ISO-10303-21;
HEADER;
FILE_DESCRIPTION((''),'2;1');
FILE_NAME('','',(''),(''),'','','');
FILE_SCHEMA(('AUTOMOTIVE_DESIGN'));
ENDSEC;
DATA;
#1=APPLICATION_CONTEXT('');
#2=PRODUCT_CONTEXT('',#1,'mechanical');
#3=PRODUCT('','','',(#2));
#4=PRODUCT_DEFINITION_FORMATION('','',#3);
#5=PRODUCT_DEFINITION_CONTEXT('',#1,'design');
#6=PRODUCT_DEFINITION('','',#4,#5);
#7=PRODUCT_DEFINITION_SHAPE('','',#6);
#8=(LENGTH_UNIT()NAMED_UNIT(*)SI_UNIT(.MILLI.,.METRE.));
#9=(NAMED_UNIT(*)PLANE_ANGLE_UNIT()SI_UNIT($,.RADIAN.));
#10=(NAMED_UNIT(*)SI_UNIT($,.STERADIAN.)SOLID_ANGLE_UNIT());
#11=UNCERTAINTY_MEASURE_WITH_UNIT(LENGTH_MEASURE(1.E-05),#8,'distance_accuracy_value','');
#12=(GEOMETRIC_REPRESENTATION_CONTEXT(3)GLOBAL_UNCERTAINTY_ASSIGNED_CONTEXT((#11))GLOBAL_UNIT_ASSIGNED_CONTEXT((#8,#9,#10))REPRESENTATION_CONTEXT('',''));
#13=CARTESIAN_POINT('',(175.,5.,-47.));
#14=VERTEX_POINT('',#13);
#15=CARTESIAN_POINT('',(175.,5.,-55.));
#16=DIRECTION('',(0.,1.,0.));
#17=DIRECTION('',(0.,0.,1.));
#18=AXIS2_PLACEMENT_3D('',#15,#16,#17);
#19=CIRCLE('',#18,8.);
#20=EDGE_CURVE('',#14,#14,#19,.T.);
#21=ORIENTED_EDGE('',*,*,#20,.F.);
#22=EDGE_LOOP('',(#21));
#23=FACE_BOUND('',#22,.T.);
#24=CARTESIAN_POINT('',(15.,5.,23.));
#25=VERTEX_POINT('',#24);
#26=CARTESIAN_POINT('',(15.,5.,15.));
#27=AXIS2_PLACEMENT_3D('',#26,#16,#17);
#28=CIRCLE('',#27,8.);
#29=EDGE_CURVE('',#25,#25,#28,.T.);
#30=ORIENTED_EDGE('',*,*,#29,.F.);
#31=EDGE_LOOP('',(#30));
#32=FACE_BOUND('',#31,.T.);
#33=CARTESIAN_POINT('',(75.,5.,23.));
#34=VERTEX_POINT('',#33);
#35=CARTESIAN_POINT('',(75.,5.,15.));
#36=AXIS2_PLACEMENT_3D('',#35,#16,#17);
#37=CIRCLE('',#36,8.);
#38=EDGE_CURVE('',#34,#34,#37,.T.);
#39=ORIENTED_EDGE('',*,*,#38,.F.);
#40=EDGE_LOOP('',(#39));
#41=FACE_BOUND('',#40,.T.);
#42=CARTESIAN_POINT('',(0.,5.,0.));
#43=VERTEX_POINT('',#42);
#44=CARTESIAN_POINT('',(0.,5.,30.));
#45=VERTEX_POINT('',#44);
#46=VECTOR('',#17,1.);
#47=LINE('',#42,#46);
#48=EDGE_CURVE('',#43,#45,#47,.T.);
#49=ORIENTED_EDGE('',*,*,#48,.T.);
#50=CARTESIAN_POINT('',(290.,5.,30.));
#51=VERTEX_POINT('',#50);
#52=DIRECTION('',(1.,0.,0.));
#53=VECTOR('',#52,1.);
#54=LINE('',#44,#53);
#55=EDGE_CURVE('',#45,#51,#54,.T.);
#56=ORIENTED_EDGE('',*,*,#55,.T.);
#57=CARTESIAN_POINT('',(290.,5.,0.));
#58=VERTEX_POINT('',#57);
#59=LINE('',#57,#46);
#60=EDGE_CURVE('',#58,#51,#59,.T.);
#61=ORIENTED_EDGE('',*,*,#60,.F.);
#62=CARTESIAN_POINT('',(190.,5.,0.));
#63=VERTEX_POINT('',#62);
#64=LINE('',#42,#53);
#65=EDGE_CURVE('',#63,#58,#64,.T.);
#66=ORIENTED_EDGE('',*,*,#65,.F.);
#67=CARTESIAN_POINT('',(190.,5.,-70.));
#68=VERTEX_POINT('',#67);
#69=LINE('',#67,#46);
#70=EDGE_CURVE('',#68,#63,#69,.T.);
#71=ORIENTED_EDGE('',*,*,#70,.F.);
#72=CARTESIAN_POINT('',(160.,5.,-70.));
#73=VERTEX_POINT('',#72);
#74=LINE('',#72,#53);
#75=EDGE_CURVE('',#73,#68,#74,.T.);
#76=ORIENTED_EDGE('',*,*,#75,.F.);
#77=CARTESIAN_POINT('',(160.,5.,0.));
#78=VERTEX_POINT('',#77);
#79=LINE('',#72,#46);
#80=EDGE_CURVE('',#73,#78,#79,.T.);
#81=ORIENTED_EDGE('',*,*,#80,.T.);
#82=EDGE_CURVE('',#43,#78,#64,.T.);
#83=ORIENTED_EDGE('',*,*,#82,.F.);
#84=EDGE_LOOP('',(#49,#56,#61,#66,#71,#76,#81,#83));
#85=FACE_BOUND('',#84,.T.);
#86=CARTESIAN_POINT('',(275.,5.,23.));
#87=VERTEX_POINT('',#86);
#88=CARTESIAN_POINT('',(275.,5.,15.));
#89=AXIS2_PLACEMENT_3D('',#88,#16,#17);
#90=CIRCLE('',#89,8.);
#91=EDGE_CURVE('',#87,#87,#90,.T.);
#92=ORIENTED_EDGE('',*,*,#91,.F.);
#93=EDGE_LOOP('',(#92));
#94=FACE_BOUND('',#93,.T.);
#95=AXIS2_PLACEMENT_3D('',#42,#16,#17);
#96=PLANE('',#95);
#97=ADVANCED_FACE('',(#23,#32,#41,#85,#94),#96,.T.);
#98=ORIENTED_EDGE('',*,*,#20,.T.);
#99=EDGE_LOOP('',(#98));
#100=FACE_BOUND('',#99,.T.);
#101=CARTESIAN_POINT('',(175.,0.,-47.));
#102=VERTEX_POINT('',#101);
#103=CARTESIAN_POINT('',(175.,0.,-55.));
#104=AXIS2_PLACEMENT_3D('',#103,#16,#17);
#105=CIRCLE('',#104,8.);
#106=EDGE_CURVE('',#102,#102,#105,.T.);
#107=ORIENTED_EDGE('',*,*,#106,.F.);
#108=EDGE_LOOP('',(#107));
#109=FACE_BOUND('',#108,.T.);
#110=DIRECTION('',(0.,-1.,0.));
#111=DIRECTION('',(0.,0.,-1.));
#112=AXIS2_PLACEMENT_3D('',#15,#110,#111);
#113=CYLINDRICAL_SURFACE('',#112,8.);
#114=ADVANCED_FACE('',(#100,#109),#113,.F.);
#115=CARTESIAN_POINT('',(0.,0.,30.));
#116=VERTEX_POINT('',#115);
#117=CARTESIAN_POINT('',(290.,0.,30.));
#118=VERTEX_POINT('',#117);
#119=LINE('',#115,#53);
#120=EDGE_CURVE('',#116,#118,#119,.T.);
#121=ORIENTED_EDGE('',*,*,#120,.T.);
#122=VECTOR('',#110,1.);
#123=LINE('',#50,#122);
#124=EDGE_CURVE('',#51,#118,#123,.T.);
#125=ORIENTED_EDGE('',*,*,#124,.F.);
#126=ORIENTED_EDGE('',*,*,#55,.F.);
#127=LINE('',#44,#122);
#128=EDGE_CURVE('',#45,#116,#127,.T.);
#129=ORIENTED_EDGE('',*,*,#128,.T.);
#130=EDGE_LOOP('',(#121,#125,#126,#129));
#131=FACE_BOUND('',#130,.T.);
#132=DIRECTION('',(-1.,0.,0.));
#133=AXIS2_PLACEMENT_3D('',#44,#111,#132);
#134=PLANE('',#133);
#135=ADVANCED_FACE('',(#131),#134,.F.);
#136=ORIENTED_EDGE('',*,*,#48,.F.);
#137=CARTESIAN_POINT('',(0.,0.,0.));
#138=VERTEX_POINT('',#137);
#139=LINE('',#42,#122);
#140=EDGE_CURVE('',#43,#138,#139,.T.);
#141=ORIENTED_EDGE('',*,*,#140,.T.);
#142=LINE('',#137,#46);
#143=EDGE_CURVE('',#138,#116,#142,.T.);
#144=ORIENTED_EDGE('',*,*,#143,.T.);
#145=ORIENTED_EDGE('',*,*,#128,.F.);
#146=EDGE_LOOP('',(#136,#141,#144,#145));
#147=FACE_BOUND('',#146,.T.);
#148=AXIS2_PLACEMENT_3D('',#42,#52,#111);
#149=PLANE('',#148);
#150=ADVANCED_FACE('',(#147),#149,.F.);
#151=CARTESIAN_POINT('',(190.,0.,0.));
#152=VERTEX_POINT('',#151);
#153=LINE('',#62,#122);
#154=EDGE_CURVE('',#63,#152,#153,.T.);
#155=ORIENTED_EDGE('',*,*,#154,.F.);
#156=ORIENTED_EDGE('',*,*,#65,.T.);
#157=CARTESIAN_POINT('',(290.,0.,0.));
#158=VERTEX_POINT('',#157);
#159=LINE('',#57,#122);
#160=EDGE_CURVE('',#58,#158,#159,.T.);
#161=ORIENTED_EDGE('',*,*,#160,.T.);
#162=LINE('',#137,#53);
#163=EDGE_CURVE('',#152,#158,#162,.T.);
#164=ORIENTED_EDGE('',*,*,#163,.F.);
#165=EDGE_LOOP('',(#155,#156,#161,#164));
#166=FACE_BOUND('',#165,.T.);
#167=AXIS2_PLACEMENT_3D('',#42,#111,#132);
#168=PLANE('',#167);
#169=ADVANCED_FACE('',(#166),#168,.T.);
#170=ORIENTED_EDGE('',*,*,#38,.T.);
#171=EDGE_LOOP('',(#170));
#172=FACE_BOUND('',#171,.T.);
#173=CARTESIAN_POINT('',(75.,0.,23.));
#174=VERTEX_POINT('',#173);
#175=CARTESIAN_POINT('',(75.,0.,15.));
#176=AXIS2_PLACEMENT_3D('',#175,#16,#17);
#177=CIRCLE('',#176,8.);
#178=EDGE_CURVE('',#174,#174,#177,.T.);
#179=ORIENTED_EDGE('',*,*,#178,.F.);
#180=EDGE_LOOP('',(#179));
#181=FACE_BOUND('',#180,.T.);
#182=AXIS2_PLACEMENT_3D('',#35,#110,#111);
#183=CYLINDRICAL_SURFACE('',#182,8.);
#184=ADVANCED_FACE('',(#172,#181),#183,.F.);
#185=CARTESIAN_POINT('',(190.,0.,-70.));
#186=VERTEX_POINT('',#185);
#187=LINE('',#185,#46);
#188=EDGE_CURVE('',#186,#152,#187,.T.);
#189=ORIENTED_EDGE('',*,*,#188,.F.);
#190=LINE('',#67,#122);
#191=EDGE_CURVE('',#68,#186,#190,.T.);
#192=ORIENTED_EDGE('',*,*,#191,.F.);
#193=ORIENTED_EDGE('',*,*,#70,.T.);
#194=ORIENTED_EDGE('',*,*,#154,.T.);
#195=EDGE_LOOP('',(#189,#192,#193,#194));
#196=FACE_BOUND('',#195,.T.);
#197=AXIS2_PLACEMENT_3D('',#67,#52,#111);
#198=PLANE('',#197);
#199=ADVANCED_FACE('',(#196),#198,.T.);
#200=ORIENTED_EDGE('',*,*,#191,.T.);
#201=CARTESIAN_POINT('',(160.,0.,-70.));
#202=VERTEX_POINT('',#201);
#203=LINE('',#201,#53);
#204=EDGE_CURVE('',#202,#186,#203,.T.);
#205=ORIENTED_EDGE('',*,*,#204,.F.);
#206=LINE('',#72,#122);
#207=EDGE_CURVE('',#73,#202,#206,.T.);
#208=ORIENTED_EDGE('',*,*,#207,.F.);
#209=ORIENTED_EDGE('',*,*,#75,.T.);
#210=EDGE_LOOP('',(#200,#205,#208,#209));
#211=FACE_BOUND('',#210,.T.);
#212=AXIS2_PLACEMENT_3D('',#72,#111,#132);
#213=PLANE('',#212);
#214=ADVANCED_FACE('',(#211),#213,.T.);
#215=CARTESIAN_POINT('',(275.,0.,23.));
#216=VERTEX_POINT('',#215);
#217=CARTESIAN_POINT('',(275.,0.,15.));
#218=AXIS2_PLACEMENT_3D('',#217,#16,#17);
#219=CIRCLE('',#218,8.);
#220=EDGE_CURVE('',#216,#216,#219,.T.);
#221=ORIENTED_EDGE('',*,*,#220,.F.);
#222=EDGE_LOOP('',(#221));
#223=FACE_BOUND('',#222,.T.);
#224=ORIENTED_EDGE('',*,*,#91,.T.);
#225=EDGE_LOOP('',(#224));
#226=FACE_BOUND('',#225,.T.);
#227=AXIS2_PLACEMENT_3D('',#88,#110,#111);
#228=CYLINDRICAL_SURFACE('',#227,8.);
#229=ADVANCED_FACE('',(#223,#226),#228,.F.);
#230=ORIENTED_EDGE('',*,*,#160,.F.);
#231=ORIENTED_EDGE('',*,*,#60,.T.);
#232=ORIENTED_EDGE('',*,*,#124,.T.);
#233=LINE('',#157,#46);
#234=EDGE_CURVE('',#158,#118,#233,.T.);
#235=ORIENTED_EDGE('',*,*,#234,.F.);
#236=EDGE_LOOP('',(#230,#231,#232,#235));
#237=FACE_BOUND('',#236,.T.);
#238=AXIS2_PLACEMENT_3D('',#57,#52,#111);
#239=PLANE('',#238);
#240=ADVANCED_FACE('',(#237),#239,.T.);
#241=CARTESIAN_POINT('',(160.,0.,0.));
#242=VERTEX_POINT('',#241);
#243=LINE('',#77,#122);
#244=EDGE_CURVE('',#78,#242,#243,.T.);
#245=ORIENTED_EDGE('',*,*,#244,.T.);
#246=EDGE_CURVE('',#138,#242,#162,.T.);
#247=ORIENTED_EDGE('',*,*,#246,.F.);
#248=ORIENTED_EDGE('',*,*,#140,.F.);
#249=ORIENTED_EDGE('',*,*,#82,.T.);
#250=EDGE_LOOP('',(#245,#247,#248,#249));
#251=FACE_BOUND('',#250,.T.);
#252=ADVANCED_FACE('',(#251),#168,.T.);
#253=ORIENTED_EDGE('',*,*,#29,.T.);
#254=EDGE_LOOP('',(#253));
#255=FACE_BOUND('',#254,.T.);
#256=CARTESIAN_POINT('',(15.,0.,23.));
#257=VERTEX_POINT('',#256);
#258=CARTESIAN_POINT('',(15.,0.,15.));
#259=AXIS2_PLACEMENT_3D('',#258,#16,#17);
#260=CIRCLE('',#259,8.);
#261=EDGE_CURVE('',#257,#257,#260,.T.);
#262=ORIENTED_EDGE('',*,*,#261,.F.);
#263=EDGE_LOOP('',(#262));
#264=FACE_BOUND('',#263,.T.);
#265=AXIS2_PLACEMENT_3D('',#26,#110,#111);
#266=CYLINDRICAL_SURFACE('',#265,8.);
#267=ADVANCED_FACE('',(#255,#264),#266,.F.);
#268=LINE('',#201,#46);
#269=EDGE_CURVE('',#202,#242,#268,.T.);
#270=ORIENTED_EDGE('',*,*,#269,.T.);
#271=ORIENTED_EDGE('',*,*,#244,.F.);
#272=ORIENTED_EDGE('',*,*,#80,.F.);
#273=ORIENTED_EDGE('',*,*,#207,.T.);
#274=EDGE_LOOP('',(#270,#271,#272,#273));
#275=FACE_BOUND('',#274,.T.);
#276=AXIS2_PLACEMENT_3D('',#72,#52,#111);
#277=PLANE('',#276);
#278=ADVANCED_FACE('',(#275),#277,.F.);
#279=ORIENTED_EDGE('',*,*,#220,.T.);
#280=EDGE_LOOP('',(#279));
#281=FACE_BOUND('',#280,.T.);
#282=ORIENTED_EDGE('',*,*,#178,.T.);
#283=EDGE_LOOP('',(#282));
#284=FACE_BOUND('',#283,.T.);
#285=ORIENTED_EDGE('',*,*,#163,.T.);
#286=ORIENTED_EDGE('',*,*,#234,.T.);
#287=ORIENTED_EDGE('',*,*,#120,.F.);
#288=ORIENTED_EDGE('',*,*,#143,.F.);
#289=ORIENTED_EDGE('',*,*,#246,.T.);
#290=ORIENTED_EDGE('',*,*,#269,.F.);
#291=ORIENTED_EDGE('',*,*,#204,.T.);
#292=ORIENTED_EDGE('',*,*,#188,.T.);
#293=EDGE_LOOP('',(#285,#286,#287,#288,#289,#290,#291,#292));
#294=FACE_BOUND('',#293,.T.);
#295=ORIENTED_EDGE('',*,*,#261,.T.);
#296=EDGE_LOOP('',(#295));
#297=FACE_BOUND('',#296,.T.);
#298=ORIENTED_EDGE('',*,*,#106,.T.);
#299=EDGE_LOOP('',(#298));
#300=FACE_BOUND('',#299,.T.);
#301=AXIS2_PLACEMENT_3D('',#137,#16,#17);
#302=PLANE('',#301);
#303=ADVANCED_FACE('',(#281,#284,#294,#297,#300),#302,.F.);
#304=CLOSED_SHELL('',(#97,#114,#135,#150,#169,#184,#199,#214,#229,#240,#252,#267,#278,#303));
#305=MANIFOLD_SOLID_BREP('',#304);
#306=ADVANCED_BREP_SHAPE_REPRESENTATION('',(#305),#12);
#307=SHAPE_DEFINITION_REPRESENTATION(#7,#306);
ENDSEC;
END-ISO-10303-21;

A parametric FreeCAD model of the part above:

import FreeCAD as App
import Part
import Sketcher


def add_polygon(sketch, points):
    """Adds a closed chain of lines whose ends are joined by coincident constraints."""
    first, n = sketch.GeometryCount, len(points)
    for a, b in zip(points, points[1:] + points[:1]):
        sketch.addGeometry(Part.LineSegment(App.Vector(*a, 0), App.Vector(*b, 0)), False)
    for i in range(n):
        sketch.addConstraint(Sketcher.Constraint("Coincident", first + i, 2, first + (i + 1) % n, 1))

doc = App.newDocument("Part")
body = doc.addObject("PartDesign::Body", "Body")

sketch1 = doc.addObject("Sketcher::SketchObject", "Sketch")
body.addObject(sketch1)
sketch1.AttachmentSupport = (doc.XZ_Plane, [""])
sketch1.MapMode = "FlatFace"
add_polygon(sketch1, [(0, 0), (0, 30), (290, 30), (290, 0), (190, 0), (190, -70), (160, -70), (160, 0)])
sketch1.addGeometry(Part.Circle(App.Vector(15, 15, 0), App.Vector(0, 0, 1), 8), False)
sketch1.addGeometry(Part.Circle(App.Vector(75, 15, 0), App.Vector(0, 0, 1), 8), False)
sketch1.addGeometry(Part.Circle(App.Vector(275, 15, 0), App.Vector(0, 0, 1), 8), False)
sketch1.addGeometry(Part.Circle(App.Vector(175, -55, 0), App.Vector(0, 0, 1), 8), False)
sketch1.addConstraint([
    Sketcher.Constraint("Vertical", 0),
    Sketcher.Constraint("Horizontal", 1),
    Sketcher.Constraint("Vertical", 2),
    Sketcher.Constraint("Horizontal", 3),
    Sketcher.Constraint("Vertical", 4),
    Sketcher.Constraint("Horizontal", 5),
    Sketcher.Constraint("Vertical", 6),
    Sketcher.Constraint("Horizontal", 7),
    Sketcher.Constraint("Coincident", 7, 2, -1, 1),
    Sketcher.Constraint("Equal", 8, 9),
    Sketcher.Constraint("Equal", 9, 10),
    Sketcher.Constraint("Equal", 10, 11),
    Sketcher.Constraint("PointOnObject", 2, 2, -1),
    Sketcher.Constraint("Horizontal", 8, 3, 9, 3),
    Sketcher.Constraint("Horizontal", 9, 3, 10, 3),
    Sketcher.Constraint("Equal", 5, 0),
    Sketcher.Constraint("Diameter", 8, 16.0),
    Sketcher.Constraint("DistanceX", 1, 1, 1, 2, 290.0),
    Sketcher.Constraint("DistanceX", 3, 2, 3, 1, 100.0),
    Sketcher.Constraint("DistanceX", 5, 2, 5, 1, 30.0),
    Sketcher.Constraint("DistanceY", 4, 2, 4, 1, 70.0),
    Sketcher.Constraint("DistanceX", -1, 1, 8, 3, 15.0),
    Sketcher.Constraint("DistanceY", -1, 1, 8, 3, 15.0),
    Sketcher.Constraint("DistanceX", -1, 1, 9, 3, 75.0),
    Sketcher.Constraint("DistanceX", -1, 1, 10, 3, 275.0),
    Sketcher.Constraint("DistanceX", -1, 1, 11, 3, 175.0),
    Sketcher.Constraint("DistanceY", 11, 3, -1, 1, 55.0),
])
pad1 = doc.addObject("PartDesign::Pad", "Pad")
body.addObject(pad1)
pad1.Profile = sketch1
pad1.Length = 5
pad1.Reversed = True

doc.recompute()
